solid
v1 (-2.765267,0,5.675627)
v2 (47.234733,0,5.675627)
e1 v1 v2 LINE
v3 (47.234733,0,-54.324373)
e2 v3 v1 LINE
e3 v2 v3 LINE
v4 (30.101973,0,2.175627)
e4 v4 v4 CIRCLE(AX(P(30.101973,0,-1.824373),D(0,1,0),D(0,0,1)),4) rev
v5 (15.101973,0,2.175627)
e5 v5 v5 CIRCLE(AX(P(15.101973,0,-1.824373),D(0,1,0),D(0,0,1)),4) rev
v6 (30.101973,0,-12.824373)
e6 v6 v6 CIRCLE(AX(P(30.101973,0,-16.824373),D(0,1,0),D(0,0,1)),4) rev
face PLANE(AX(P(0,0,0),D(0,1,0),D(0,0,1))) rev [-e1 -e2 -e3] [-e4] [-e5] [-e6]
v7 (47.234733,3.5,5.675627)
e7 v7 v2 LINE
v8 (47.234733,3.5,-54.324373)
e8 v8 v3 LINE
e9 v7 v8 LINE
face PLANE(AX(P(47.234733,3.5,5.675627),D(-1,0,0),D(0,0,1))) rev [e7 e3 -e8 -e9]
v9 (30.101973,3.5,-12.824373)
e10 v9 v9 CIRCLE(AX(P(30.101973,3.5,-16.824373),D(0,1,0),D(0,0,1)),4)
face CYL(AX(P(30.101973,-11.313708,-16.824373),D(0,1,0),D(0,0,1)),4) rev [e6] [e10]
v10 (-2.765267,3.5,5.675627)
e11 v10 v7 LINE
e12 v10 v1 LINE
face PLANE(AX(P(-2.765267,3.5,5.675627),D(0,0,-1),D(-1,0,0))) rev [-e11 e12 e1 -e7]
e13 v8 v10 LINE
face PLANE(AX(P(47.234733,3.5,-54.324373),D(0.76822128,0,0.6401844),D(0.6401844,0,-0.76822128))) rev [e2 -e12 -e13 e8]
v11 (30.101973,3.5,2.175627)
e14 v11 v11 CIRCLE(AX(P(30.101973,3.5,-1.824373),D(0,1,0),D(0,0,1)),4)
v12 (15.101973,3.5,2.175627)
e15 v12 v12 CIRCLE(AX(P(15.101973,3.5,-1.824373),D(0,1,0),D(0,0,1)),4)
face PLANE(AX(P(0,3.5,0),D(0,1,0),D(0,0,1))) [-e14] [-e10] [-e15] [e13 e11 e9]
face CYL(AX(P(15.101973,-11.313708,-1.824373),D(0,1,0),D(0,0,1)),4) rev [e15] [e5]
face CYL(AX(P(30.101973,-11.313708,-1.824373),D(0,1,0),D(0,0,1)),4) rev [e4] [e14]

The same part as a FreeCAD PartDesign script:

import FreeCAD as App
import Part
import Sketcher
from FreeCAD import Vector
Q = App.Units.Quantity

doc = App.newDocument("Part")
body = doc.addObject("PartDesign::Body", "Body")

# Sketch on XZ plane
sketch1 = doc.addObject("Sketcher::SketchObject", "Sketch")
body.addObject(sketch1)
sketch1.AttachmentSupport = (doc.XZ_Plane, [""])
sketch1.MapMode = "FlatFace"
sketch1.addGeometry(Part.LineSegment(Vector(-3, 6, 0), Vector(47, 6, 0)), False)
sketch1.addGeometry(Part.LineSegment(Vector(47, 6, 0), Vector(47, -54, 0)), False)
sketch1.addGeometry(Part.LineSegment(Vector(47, -54, 0), Vector(-3, 6, 0)), False)
sketch1.addConstraint(Sketcher.Constraint("Coincident", 0, 2, 1, 1))
sketch1.addConstraint(Sketcher.Constraint("Coincident", 1, 2, 2, 1))
sketch1.addConstraint(Sketcher.Constraint("Coincident", 2, 2, 0, 1))
sketch1.addConstraint(Sketcher.Constraint("Horizontal", 0))
sketch1.addConstraint(Sketcher.Constraint("Vertical", 1))
sketch1.addConstraint(Sketcher.Constraint("DistanceX", 0, 1, 0, 2, Q("50 mm")))
sketch1.addConstraint(Sketcher.Constraint("DistanceY", 1, 2, 1, 1, Q("60 mm")))
sketch1.addConstraint(Sketcher.Constraint("DistanceX", -1, 1, 0, 2, Q("47.234733 mm")))
sketch1.addConstraint(Sketcher.Constraint("DistanceY", -1, 1, 0, 2, Q("5.675627 mm")))
pad1 = doc.addObject("PartDesign::Pad", "Pad")
body.addObject(pad1)
pad1.Profile = sketch1
pad1.Length = 3.5
pad1.Reversed = True

# Sketch on XZ plane
sketch2 = doc.addObject("Sketcher::SketchObject", "Sketch001")
body.addObject(sketch2)
sketch2.AttachmentSupport = (doc.XZ_Plane, [""])
sketch2.MapMode = "FlatFace"
sketch2.AttachmentOffset = App.Placement(Vector(0, 0, -3.5), App.Rotation())
sketch2.addGeometry(Part.Circle(Vector(30.1, -1.8, 0), Vector(0, 0, 1), 4), False)
sketch2.addGeometry(Part.Circle(Vector(15.1, -1.8, 0), Vector(0, 0, 1), 4), False)
sketch2.addGeometry(Part.Circle(Vector(30.1, -16.8, 0), Vector(0, 0, 1), 4), False)
sketch2.addConstraint(Sketcher.Constraint("Equal", 0, 1))
sketch2.addConstraint(Sketcher.Constraint("Equal", 1, 2))
sketch2.addConstraint(Sketcher.Constraint("Horizontal", 0, 3, 1, 3))
sketch2.addConstraint(Sketcher.Constraint("Vertical", 0, 3, 2, 3))
sketch2.addConstraint(Sketcher.Constraint("Diameter", 0, Q("8 mm")))
sketch2.addConstraint(Sketcher.Constraint("DistanceX", 1, 3, 0, 3, Q("15 mm")))
sketch2.addConstraint(Sketcher.Constraint("DistanceY", 2, 3, 0, 3, Q("15 mm")))
sketch2.addConstraint(Sketcher.Constraint("DistanceX", -1, 1, 0, 3, Q("30.101973 mm")))
sketch2.addConstraint(Sketcher.Constraint("DistanceY", 0, 3, -1, 1, Q("1.824373 mm")))
pocket1 = doc.addObject("PartDesign::Pocket", "Pocket")
body.addObject(pocket1)
pocket1.Profile = sketch2
pocket1.Length = 3.5
pocket1.Reversed = True

doc.recompute()
